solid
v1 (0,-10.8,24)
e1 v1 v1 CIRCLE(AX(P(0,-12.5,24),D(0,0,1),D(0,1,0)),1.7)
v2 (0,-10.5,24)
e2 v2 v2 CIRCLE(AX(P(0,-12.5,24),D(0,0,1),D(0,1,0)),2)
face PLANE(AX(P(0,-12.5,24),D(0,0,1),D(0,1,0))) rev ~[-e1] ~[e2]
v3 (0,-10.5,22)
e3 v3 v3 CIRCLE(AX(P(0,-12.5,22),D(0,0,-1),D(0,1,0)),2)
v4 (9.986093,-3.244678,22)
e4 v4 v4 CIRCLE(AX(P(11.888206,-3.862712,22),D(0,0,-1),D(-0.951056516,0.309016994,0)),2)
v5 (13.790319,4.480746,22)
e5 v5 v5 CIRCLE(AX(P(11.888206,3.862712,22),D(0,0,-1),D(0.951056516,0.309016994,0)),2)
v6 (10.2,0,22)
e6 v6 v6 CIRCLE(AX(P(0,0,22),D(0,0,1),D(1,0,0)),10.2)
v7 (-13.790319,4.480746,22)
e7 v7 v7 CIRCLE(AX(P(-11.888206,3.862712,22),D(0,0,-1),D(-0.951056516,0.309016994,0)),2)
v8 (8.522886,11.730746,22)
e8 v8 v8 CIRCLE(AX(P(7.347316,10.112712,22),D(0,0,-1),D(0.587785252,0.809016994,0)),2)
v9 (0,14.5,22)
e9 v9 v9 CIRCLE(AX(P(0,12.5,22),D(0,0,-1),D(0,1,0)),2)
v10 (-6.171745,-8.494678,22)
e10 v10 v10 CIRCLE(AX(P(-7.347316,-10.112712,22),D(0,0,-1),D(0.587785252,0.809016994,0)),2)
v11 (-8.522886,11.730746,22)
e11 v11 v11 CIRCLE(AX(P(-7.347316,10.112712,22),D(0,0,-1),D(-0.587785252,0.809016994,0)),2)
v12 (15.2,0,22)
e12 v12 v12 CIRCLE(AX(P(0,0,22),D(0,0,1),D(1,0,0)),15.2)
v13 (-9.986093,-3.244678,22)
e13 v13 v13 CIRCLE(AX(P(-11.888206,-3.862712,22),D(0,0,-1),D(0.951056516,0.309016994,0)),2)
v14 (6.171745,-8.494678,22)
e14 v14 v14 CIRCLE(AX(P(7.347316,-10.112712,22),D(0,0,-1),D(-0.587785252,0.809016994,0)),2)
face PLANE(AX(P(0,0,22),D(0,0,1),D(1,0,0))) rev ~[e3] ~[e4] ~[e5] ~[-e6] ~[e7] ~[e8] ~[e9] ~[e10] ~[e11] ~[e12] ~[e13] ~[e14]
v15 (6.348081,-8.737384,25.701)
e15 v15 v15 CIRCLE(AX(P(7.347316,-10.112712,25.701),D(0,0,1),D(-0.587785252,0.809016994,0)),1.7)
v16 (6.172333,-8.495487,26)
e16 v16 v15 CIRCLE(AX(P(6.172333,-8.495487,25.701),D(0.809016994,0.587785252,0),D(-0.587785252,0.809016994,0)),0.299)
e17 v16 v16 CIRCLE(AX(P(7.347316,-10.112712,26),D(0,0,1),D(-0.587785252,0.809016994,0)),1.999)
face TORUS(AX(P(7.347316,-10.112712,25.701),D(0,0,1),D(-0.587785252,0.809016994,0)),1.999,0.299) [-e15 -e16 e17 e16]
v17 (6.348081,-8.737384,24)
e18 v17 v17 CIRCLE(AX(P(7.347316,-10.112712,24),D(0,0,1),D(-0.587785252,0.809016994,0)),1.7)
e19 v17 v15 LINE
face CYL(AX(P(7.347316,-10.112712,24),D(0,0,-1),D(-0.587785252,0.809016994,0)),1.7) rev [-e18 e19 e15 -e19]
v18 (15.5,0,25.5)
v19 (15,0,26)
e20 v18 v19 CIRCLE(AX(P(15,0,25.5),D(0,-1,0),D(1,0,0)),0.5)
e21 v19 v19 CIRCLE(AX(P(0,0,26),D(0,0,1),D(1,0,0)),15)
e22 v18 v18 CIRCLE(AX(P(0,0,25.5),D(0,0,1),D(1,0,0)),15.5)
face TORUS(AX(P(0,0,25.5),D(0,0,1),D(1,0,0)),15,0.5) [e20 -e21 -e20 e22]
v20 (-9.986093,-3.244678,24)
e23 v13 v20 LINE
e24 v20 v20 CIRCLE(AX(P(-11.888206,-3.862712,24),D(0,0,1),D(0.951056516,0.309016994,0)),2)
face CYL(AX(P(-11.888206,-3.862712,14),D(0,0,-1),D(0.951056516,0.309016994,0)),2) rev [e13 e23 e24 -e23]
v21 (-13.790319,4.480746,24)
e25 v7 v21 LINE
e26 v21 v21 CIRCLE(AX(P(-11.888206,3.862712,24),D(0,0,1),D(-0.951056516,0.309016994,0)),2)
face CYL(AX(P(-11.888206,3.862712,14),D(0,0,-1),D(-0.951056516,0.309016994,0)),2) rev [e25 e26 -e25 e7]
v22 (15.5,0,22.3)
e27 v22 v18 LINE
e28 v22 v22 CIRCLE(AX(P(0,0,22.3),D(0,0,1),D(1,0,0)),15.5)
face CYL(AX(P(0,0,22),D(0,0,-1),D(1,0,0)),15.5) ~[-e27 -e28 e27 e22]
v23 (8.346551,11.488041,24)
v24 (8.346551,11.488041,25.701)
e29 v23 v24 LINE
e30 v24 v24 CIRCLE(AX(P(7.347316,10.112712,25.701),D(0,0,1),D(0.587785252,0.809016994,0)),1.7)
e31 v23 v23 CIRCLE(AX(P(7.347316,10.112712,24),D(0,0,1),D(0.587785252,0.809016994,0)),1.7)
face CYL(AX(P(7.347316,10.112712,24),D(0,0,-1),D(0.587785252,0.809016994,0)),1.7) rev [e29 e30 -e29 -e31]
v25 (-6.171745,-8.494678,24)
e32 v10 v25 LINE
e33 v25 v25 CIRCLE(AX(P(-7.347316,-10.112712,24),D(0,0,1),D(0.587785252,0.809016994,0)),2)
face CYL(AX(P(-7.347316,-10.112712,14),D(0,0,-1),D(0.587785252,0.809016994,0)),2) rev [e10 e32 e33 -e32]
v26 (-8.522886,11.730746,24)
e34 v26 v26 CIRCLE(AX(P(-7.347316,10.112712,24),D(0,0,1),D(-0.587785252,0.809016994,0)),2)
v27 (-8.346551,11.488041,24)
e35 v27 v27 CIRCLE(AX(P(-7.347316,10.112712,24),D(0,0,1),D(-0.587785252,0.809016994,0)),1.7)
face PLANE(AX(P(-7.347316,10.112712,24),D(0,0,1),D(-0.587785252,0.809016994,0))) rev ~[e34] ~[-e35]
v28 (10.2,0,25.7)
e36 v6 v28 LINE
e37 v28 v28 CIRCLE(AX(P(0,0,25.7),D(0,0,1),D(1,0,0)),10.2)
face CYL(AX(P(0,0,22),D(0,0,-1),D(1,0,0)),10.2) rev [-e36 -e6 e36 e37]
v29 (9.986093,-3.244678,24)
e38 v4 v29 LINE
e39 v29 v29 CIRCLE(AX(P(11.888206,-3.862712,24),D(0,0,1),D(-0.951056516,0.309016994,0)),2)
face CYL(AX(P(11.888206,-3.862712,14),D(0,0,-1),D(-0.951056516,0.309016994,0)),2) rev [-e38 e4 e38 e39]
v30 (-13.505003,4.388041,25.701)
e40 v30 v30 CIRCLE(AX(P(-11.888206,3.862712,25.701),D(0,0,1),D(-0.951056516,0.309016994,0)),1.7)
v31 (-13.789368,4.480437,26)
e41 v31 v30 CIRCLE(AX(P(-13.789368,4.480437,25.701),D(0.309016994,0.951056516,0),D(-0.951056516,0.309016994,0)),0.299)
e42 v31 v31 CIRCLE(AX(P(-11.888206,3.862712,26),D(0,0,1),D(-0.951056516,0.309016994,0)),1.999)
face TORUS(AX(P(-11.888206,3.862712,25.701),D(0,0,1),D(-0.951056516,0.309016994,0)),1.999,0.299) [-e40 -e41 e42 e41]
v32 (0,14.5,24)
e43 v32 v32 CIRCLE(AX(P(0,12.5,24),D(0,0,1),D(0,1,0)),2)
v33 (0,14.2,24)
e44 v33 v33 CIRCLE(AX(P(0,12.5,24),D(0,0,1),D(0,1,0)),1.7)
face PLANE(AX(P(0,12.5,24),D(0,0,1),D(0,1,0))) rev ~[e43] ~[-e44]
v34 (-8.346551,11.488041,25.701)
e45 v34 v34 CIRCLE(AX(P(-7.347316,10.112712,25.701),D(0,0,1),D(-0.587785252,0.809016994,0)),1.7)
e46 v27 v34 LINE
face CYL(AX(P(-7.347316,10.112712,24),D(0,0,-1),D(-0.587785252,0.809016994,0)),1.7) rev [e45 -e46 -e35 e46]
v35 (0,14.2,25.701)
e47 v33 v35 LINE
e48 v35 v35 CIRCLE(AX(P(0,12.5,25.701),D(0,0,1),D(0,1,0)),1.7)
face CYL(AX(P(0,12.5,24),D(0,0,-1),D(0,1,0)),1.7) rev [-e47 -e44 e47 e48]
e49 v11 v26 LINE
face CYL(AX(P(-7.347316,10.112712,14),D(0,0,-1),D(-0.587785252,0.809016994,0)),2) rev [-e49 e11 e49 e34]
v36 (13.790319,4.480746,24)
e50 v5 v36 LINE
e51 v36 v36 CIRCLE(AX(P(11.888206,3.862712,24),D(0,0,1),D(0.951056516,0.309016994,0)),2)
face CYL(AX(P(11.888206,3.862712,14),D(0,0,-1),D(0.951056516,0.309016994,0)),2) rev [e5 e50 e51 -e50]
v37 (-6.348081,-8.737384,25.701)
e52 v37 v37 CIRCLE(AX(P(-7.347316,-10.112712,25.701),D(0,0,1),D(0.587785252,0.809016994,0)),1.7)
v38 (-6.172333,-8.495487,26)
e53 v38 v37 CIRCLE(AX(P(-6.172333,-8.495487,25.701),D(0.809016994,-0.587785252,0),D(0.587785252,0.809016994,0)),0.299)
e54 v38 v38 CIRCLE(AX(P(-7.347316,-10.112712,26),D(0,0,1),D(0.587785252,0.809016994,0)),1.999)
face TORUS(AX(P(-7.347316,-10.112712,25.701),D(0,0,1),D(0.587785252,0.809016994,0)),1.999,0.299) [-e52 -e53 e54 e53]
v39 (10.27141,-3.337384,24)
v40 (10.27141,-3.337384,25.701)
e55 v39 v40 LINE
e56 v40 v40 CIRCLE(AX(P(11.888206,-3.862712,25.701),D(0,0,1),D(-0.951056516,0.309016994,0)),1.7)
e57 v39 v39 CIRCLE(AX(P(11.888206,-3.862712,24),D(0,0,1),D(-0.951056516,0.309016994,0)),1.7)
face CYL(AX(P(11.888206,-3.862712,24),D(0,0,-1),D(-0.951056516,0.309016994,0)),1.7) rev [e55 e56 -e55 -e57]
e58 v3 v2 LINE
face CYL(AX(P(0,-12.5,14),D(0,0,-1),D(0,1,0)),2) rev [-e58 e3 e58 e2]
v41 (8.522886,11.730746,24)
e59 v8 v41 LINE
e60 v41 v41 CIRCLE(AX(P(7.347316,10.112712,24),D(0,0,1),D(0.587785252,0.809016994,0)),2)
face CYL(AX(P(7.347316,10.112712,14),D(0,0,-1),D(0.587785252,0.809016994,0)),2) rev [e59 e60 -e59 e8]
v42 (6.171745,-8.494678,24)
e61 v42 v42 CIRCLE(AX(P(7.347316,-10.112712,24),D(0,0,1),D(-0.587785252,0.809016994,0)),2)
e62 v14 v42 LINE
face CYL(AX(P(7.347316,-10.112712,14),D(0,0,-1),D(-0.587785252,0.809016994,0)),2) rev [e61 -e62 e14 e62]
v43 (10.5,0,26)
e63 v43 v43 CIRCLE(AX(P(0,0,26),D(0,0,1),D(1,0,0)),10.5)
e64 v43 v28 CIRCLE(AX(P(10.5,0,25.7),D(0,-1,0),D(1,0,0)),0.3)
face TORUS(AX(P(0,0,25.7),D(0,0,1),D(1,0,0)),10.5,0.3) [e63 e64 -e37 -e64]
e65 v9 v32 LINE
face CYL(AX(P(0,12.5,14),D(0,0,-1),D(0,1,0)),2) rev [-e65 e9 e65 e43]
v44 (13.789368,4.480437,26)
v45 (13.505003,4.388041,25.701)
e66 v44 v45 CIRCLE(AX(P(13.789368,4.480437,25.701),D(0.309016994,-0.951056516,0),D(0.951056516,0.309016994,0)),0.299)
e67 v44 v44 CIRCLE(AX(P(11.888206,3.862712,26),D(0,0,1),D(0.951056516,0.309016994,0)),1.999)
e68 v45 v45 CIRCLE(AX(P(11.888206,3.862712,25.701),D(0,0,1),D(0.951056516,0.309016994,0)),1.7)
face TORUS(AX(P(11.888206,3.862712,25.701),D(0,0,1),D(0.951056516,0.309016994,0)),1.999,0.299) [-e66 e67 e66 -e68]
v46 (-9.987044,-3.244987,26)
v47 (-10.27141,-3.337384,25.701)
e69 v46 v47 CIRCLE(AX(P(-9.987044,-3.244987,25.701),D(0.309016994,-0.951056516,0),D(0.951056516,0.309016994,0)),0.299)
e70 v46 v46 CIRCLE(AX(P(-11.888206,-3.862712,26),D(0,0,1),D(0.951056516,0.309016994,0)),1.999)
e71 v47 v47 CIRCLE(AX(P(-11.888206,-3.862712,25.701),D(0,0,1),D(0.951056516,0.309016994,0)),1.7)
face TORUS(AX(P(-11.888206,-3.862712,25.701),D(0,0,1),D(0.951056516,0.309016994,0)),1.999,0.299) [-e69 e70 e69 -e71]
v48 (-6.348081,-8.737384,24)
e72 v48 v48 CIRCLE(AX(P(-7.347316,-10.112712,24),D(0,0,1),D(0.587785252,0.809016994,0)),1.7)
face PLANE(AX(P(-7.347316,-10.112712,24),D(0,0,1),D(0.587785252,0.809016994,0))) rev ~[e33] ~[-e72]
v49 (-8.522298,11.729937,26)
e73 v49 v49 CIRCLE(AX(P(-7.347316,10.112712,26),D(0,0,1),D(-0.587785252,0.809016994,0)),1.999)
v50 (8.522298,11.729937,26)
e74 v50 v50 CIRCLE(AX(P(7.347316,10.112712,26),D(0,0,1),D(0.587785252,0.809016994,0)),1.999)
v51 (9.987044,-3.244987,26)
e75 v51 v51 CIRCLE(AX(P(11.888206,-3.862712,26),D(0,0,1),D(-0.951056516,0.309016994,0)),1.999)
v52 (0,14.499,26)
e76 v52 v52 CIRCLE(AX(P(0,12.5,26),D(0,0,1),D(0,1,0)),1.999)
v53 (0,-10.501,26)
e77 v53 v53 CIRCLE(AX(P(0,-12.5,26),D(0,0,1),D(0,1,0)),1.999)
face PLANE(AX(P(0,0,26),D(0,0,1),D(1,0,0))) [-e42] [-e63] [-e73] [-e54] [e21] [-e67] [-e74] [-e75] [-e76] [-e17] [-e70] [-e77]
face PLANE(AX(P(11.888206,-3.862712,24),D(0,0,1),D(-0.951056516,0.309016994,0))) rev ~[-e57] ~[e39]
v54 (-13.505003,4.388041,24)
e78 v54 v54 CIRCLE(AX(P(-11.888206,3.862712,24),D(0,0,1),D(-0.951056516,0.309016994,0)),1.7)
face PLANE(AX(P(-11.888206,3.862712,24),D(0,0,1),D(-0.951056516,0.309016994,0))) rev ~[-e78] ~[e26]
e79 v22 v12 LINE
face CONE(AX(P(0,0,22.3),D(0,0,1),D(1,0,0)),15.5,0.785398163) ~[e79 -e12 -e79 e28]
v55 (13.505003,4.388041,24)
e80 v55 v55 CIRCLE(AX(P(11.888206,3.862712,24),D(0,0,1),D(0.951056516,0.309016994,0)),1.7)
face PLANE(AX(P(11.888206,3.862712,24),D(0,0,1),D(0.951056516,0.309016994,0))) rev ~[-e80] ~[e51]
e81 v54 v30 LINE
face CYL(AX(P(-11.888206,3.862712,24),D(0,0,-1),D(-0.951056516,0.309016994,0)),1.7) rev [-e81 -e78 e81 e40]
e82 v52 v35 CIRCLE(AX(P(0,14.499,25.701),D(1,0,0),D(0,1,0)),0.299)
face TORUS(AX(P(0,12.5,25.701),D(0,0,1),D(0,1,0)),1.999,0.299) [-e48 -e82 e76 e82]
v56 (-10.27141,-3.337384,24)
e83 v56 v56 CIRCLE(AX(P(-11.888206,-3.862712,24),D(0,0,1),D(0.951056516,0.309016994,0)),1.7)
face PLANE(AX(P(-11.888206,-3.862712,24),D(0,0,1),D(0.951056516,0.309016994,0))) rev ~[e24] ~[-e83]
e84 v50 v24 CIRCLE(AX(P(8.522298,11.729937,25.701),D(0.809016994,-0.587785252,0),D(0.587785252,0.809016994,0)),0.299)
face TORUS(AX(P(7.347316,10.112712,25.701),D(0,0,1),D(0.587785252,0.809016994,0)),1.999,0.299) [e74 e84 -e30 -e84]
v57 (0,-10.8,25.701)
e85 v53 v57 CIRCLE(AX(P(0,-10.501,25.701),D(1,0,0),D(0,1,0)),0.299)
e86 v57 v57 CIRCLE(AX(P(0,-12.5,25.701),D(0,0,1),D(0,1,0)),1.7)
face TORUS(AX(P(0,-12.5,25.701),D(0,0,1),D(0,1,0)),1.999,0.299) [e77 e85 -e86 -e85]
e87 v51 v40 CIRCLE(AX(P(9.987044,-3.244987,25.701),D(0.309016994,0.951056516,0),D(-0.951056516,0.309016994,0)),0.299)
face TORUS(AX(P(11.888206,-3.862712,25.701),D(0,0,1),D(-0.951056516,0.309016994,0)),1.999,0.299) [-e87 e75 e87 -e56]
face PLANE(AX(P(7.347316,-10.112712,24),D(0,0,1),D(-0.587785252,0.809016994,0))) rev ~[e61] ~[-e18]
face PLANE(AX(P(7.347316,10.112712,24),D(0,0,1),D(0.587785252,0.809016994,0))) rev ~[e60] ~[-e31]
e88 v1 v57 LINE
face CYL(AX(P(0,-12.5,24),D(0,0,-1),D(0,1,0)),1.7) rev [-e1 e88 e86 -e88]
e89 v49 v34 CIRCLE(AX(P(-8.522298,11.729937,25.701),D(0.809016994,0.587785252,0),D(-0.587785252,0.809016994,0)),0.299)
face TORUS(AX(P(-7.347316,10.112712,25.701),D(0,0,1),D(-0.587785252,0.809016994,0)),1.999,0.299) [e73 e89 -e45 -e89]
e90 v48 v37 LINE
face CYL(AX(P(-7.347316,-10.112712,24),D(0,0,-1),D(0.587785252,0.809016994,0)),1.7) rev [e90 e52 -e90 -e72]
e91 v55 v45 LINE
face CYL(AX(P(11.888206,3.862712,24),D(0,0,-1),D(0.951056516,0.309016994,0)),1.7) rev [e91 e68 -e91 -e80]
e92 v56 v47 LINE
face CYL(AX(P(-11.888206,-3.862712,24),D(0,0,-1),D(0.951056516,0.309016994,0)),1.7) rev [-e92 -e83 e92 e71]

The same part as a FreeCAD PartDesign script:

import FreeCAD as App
import Part
import Sketcher


def edges_at(feature, points):
    """Names of the edges that pass closest to the given points."""
    edges = feature.Shape.Edges
    near = lambda p: min(range(len(edges)), key=lambda i: edges[i].distToShape(Part.Vertex(*p))[0])
    return sorted({f"Edge{near(p) + 1}" for p in points})

doc = App.newDocument("Part")
body = doc.addObject("PartDesign::Body", "Body")

sketch1 = doc.addObject("Sketcher::SketchObject", "Sketch")
body.addObject(sketch1)
sketch1.AttachmentSupport = (doc.XY_Plane, [""])
sketch1.MapMode = "FlatFace"
sketch1.AttachmentOffset = App.Placement(App.Vector(0, 0, 22), App.Rotation())
sketch1.addGeometry(Part.Circle(App.Vector(0, 0, 0), App.Vector(0, 0, 1), 10), False)
sketch1.addConstraint([
    Sketcher.Constraint("Coincident", 0, 3, -1, 1),
    Sketcher.Constraint("Diameter", 0, 20.4),
])
pad1 = doc.addObject("PartDesign::Pad", "Pad")
body.addObject(pad1)
pad1.Profile = sketch1
pad1.Length = 4
body2 = doc.addObject("PartDesign::Body", "Body001")

sketch2 = doc.addObject("Sketcher::SketchObject", "Sketch001")
body2.addObject(sketch2)
sketch2.AttachmentSupport = (doc.getObject("XY_Plane001"), [""])
sketch2.MapMode = "FlatFace"
sketch2.AttachmentOffset = App.Placement(App.Vector(0, 0, 13), App.Rotation())
sketch2.addGeometry(Part.Circle(App.Vector(-12.5, 0, 0), App.Vector(0, 0, 1), 1.7), False)
sketch2.addConstraint([
    Sketcher.Constraint("PointOnObject", 0, 3, -1),
    Sketcher.Constraint("Diameter", 0, 3.4),
    Sketcher.Constraint("DistanceX", 0, 3, -1, 1, 12.5),
])
pad2 = doc.addObject("PartDesign::Pad", "Pad001")
body2.addObject(pad2)
pad2.Profile = sketch2
pad2.Length = 2
body3 = doc.addObject("PartDesign::Body", "Body002")
body3.AllowCompound = True

sketch3 = doc.addObject("Sketcher::SketchObject", "Sketch002")
body3.addObject(sketch3)
sketch3.AttachmentSupport = (doc.getObject("XY_Plane002"), [""])
sketch3.MapMode = "FlatFace"
sketch3.AttachmentOffset = App.Placement(App.Vector(0, 0, 13), App.Rotation())
sketch3.addGeometry(Part.Circle(App.Vector(12.5, 0, 0), App.Vector(0, 0, 1), 1.7), False)
sketch3.addConstraint([
    Sketcher.Constraint("PointOnObject", 0, 3, -1),
    Sketcher.Constraint("Diameter", 0, 3.4),
    Sketcher.Constraint("DistanceX", -1, 1, 0, 3, 12.5),
])
pad3 = doc.addObject("PartDesign::Pad", "Pad002")
body3.addObject(pad3)
pad3.Profile = sketch3
pad3.Length = 2
doc.recompute()

boolean = doc.addObject("PartDesign::Boolean", "Boolean")
body3.addObject(boolean)
boolean.Type = "Fuse"
boolean.addObjects([body2])
body4 = doc.addObject("PartDesign::Body", "Body003")
body4.AllowCompound = True
doc.recompute()

body3.Placement = App.Placement(App.Vector(0, 0, 0), App.Rotation(App.Vector(0, 0, 1), 54))
boolean2 = doc.addObject("PartDesign::Boolean", "Boolean001")
body4.addObject(boolean2)
boolean2.Type = "Fuse"
boolean2.addObjects([body3])
body5 = doc.addObject("PartDesign::Body", "Body004")

sketch4 = doc.addObject("Sketcher::SketchObject", "Sketch003")
body5.addObject(sketch4)
sketch4.AttachmentSupport = (doc.getObject("XY_Plane004"), [""])
sketch4.MapMode = "FlatFace"
sketch4.AttachmentOffset = App.Placement(App.Vector(0, 0, 13), App.Rotation())
sketch4.addGeometry(Part.Circle(App.Vector(-12.5, 0, 0), App.Vector(0, 0, 1), 1.7), False)
sketch4.addConstraint([
    Sketcher.Constraint("PointOnObject", 0, 3, -1),
    Sketcher.Constraint("Diameter", 0, 3.4),
    Sketcher.Constraint("DistanceX", 0, 3, -1, 1, 12.5),
])
pad4 = doc.addObject("PartDesign::Pad", "Pad003")
body5.addObject(pad4)
pad4.Profile = sketch4
pad4.Length = 2
body6 = doc.addObject("PartDesign::Body", "Body005")
body6.AllowCompound = True

sketch5 = doc.addObject("Sketcher::SketchObject", "Sketch004")
body6.addObject(sketch5)
sketch5.AttachmentSupport = (doc.getObject("XY_Plane005"), [""])
sketch5.MapMode = "FlatFace"
sketch5.AttachmentOffset = App.Placement(App.Vector(0, 0, 13), App.Rotation())
sketch5.addGeometry(Part.Circle(App.Vector(12.5, 0, 0), App.Vector(0, 0, 1), 1.7), False)
sketch5.addConstraint([
    Sketcher.Constraint("PointOnObject", 0, 3, -1),
    Sketcher.Constraint("Diameter", 0, 3.4),
    Sketcher.Constraint("DistanceX", -1, 1, 0, 3, 12.5),
])
pad5 = doc.addObject("PartDesign::Pad", "Pad004")
body6.addObject(pad5)
pad5.Profile = sketch5
pad5.Length = 2
doc.recompute()

boolean3 = doc.addObject("PartDesign::Boolean", "Boolean002")
body6.addObject(boolean3)
boolean3.Type = "Fuse"
boolean3.addObjects([body5])
body7 = doc.addObject("PartDesign::Body", "Body006")
body7.AllowCompound = True
doc.recompute()

body6.Placement = App.Placement(App.Vector(0, 0, 0), App.Rotation(App.Vector(0, 0, 1), 162))
boolean4 = doc.addObject("PartDesign::Boolean", "Boolean003")
body7.addObject(boolean4)
boolean4.Type = "Fuse"
boolean4.addObjects([body6])
body8 = doc.addObject("PartDesign::Body", "Body007")

sketch6 = doc.addObject("Sketcher::SketchObject", "Sketch005")
body8.addObject(sketch6)
sketch6.AttachmentSupport = (doc.getObject("XY_Plane007"), [""])
sketch6.MapMode = "FlatFace"
sketch6.AttachmentOffset = App.Placement(App.Vector(0, 0, 13), App.Rotation())
sketch6.addGeometry(Part.Circle(App.Vector(-12.5, 0, 0), App.Vector(0, 0, 1), 1.7), False)
sketch6.addConstraint([
    Sketcher.Constraint("PointOnObject", 0, 3, -1),
    Sketcher.Constraint("Diameter", 0, 3.4),
    Sketcher.Constraint("DistanceX", 0, 3, -1, 1, 12.5),
])
pad6 = doc.addObject("PartDesign::Pad", "Pad005")
body8.addObject(pad6)
pad6.Profile = sketch6
pad6.Length = 2
body9 = doc.addObject("PartDesign::Body", "Body008")
body9.AllowCompound = True

sketch7 = doc.addObject("Sketcher::SketchObject", "Sketch006")
body9.addObject(sketch7)
sketch7.AttachmentSupport = (doc.getObject("XY_Plane008"), [""])
sketch7.MapMode = "FlatFace"
sketch7.AttachmentOffset = App.Placement(App.Vector(0, 0, 13), App.Rotation())
sketch7.addGeometry(Part.Circle(App.Vector(12.5, 0, 0), App.Vector(0, 0, 1), 1.7), False)
sketch7.addConstraint([
    Sketcher.Constraint("PointOnObject", 0, 3, -1),
    Sketcher.Constraint("Diameter", 0, 3.4),
    Sketcher.Constraint("DistanceX", -1, 1, 0, 3, 12.5),
])
pad7 = doc.addObject("PartDesign::Pad", "Pad006")
body9.addObject(pad7)
pad7.Profile = sketch7
pad7.Length = 2
doc.recompute()

boolean5 = doc.addObject("PartDesign::Boolean", "Boolean004")
body9.addObject(boolean5)
boolean5.Type = "Fuse"
boolean5.addObjects([body8])
body10 = doc.addObject("PartDesign::Body", "Body009")
body10.AllowCompound = True
doc.recompute()

body9.Placement = App.Placement(App.Vector(0, 0, 0), App.Rotation(App.Vector(0, 0, 1), 126))
boolean6 = doc.addObject("PartDesign::Boolean", "Boolean005")
body10.addObject(boolean6)
boolean6.Type = "Fuse"
boolean6.addObjects([body9])
body11 = doc.addObject("PartDesign::Body", "Body010")

sketch8 = doc.addObject("Sketcher::SketchObject", "Sketch007")
body11.addObject(sketch8)
sketch8.AttachmentSupport = (doc.getObject("XY_Plane010"), [""])
sketch8.MapMode = "FlatFace"
sketch8.AttachmentOffset = App.Placement(App.Vector(0, 0, 13), App.Rotation())
sketch8.addGeometry(Part.Circle(App.Vector(-12.5, 0, 0), App.Vector(0, 0, 1), 1.7), False)
sketch8.addConstraint([
    Sketcher.Constraint("PointOnObject", 0, 3, -1),
    Sketcher.Constraint("Diameter", 0, 3.4),
    Sketcher.Constraint("DistanceX", 0, 3, -1, 1, 12.5),
])
pad8 = doc.addObject("PartDesign::Pad", "Pad007")
body11.addObject(pad8)
pad8.Profile = sketch8
pad8.Length = 2
body12 = doc.addObject("PartDesign::Body", "Body011")
body12.AllowCompound = True

sketch9 = doc.addObject("Sketcher::SketchObject", "Sketch008")
body12.addObject(sketch9)
sketch9.AttachmentSupport = (doc.getObject("XY_Plane011"), [""])
sketch9.MapMode = "FlatFace"
sketch9.AttachmentOffset = App.Placement(App.Vector(0, 0, 13), App.Rotation())
sketch9.addGeometry(Part.Circle(App.Vector(12.5, 0, 0), App.Vector(0, 0, 1), 1.7), False)
sketch9.addConstraint([
    Sketcher.Constraint("PointOnObject", 0, 3, -1),
    Sketcher.Constraint("Diameter", 0, 3.4),
    Sketcher.Constraint("DistanceX", -1, 1, 0, 3, 12.5),
])
pad9 = doc.addObject("PartDesign::Pad", "Pad008")
body12.addObject(pad9)
pad9.Profile = sketch9
pad9.Length = 2
doc.recompute()

boolean7 = doc.addObject("PartDesign::Boolean", "Boolean006")
body12.addObject(boolean7)
boolean7.Type = "Fuse"
boolean7.addObjects([body11])
body13 = doc.addObject("PartDesign::Body", "Body012")
body13.AllowCompound = True
doc.recompute()

body12.Placement = App.Placement(App.Vector(0, 0, 0), App.Rotation(App.Vector(0, 0, 1), 90))
boolean8 = doc.addObject("PartDesign::Boolean", "Boolean007")
body13.addObject(boolean8)
boolean8.Type = "Fuse"
boolean8.addObjects([body12])
body14 = doc.addObject("PartDesign::Body", "Body013")

sketch10 = doc.addObject("Sketcher::SketchObject", "Sketch009")
body14.addObject(sketch10)
sketch10.AttachmentSupport = (doc.getObject("XY_Plane013"), [""])
sketch10.MapMode = "FlatFace"
sketch10.AttachmentOffset = App.Placement(App.Vector(0, 0, 13), App.Rotation())
sketch10.addGeometry(Part.Circle(App.Vector(-12.5, 0, 0), App.Vector(0, 0, 1), 1.7), False)
sketch10.addConstraint([
    Sketcher.Constraint("PointOnObject", 0, 3, -1),
    Sketcher.Constraint("Diameter", 0, 3.4),
    Sketcher.Constraint("DistanceX", 0, 3, -1, 1, 12.5),
])
pad10 = doc.addObject("PartDesign::Pad", "Pad009")
body14.addObject(pad10)
pad10.Profile = sketch10
pad10.Length = 2
body15 = doc.addObject("PartDesign::Body", "Body014")
body15.AllowCompound = True

sketch11 = doc.addObject("Sketcher::SketchObject", "Sketch010")
body15.addObject(sketch11)
sketch11.AttachmentSupport = (doc.getObject("XY_Plane014"), [""])
sketch11.MapMode = "FlatFace"
sketch11.AttachmentOffset = App.Placement(App.Vector(0, 0, 13), App.Rotation())
sketch11.addGeometry(Part.Circle(App.Vector(12.5, 0, 0), App.Vector(0, 0, 1), 1.7), False)
sketch11.addConstraint([
    Sketcher.Constraint("PointOnObject", 0, 3, -1),
    Sketcher.Constraint("Diameter", 0, 3.4),
    Sketcher.Constraint("DistanceX", -1, 1, 0, 3, 12.5),
])
pad11 = doc.addObject("PartDesign::Pad", "Pad010")
body15.addObject(pad11)
pad11.Profile = sketch11
pad11.Length = 2
doc.recompute()

boolean9 = doc.addObject("PartDesign::Boolean", "Boolean008")
body15.addObject(boolean9)
boolean9.Type = "Fuse"
boolean9.addObjects([body14])
body16 = doc.addObject("PartDesign::Body", "Body015")
body16.AllowCompound = True
doc.recompute()

body15.Placement = App.Placement(App.Vector(0, 0, 0), App.Rotation(App.Vector(0, 0, 1), 18))
boolean10 = doc.addObject("PartDesign::Boolean", "Boolean009")
body16.addObject(boolean10)
boolean10.Type = "Fuse"
boolean10.addObjects([body15])
doc.recompute()

boolean11 = doc.addObject("PartDesign::Boolean", "Boolean010")
body16.addObject(boolean11)
boolean11.Type = "Fuse"
boolean11.addObjects([body4])
doc.recompute()

boolean12 = doc.addObject("PartDesign::Boolean", "Boolean011")
body16.addObject(boolean12)
boolean12.Type = "Fuse"
boolean12.addObjects([body7])
doc.recompute()

boolean13 = doc.addObject("PartDesign::Boolean", "Boolean012")
body16.addObject(boolean13)
boolean13.Type = "Fuse"
boolean13.addObjects([body10])
doc.recompute()

boolean14 = doc.addObject("PartDesign::Boolean", "Boolean013")
body16.addObject(boolean14)
boolean14.Type = "Fuse"
boolean14.addObjects([body13])
body17 = doc.addObject("PartDesign::Body", "Body016")
body17.AllowCompound = True
doc.recompute()

body16.Placement = App.Placement(App.Vector(0, 0, 11), App.Rotation(App.Vector(0, 0, 1), 0))
boolean15 = doc.addObject("PartDesign::Boolean", "Boolean014")
body17.addObject(boolean15)
boolean15.Type = "Fuse"
boolean15.addObjects([body16])
body18 = doc.addObject("PartDesign::Body", "Body017")

sketch12 = doc.addObject("Sketcher::SketchObject", "Sketch011")
body18.addObject(sketch12)
sketch12.AttachmentSupport = (doc.getObject("XY_Plane017"), [""])
sketch12.MapMode = "FlatFace"
sketch12.AttachmentOffset = App.Placement(App.Vector(0, 0, 13), App.Rotation())
sketch12.addGeometry(Part.Circle(App.Vector(-12.5, 0, 0), App.Vector(0, 0, 1), 2), False)
sketch12.addConstraint([
    Sketcher.Constraint("PointOnObject", 0, 3, -1),
    Sketcher.Constraint("Diameter", 0, 4.0),
    Sketcher.Constraint("DistanceX", 0, 3, -1, 1, 12.5),
])
pad12 = doc.addObject("PartDesign::Pad", "Pad011")
body18.addObject(pad12)
pad12.Profile = sketch12
pad12.Length = 10
body19 = doc.addObject("PartDesign::Body", "Body018")
body19.AllowCompound = True

sketch13 = doc.addObject("Sketcher::SketchObject", "Sketch012")
body19.addObject(sketch13)
sketch13.AttachmentSupport = (doc.getObject("XY_Plane018"), [""])
sketch13.MapMode = "FlatFace"
sketch13.AttachmentOffset = App.Placement(App.Vector(0, 0, 13), App.Rotation())
sketch13.addGeometry(Part.Circle(App.Vector(12.5, 0, 0), App.Vector(0, 0, 1), 2), False)
sketch13.addConstraint([
    Sketcher.Constraint("PointOnObject", 0, 3, -1),
    Sketcher.Constraint("Diameter", 0, 4.0),
    Sketcher.Constraint("DistanceX", -1, 1, 0, 3, 12.5),
])
pad13 = doc.addObject("PartDesign::Pad", "Pad012")
body19.addObject(pad13)
pad13.Profile = sketch13
pad13.Length = 10
doc.recompute()

boolean16 = doc.addObject("PartDesign::Boolean", "Boolean015")
body19.addObject(boolean16)
boolean16.Type = "Fuse"
boolean16.addObjects([body18])
body20 = doc.addObject("PartDesign::Body", "Body019")
body20.AllowCompound = True
doc.recompute()

body19.Placement = App.Placement(App.Vector(0, 0, 0), App.Rotation(App.Vector(0, 0, 1), 54))
boolean17 = doc.addObject("PartDesign::Boolean", "Boolean016")
body20.addObject(boolean17)
boolean17.Type = "Fuse"
boolean17.addObjects([body19])
body21 = doc.addObject("PartDesign::Body", "Body020")

sketch14 = doc.addObject("Sketcher::SketchObject", "Sketch013")
body21.addObject(sketch14)
sketch14.AttachmentSupport = (doc.getObject("XY_Plane020"), [""])
sketch14.MapMode = "FlatFace"
sketch14.AttachmentOffset = App.Placement(App.Vector(0, 0, 13), App.Rotation())
sketch14.addGeometry(Part.Circle(App.Vector(-12.5, 0, 0), App.Vector(0, 0, 1), 2), False)
sketch14.addConstraint([
    Sketcher.Constraint("PointOnObject", 0, 3, -1),
    Sketcher.Constraint("Diameter", 0, 4.0),
    Sketcher.Constraint("DistanceX", 0, 3, -1, 1, 12.5),
])
pad14 = doc.addObject("PartDesign::Pad", "Pad013")
body21.addObject(pad14)
pad14.Profile = sketch14
pad14.Length = 10
body22 = doc.addObject("PartDesign::Body", "Body021")
body22.AllowCompound = True

sketch15 = doc.addObject("Sketcher::SketchObject", "Sketch014")
body22.addObject(sketch15)
sketch15.AttachmentSupport = (doc.getObject("XY_Plane021"), [""])
sketch15.MapMode = "FlatFace"
sketch15.AttachmentOffset = App.Placement(App.Vector(0, 0, 13), App.Rotation())
sketch15.addGeometry(Part.Circle(App.Vector(12.5, 0, 0), App.Vector(0, 0, 1), 2), False)
sketch15.addConstraint([
    Sketcher.Constraint("PointOnObject", 0, 3, -1),
    Sketcher.Constraint("Diameter", 0, 4.0),
    Sketcher.Constraint("DistanceX", -1, 1, 0, 3, 12.5),
])
pad15 = doc.addObject("PartDesign::Pad", "Pad014")
body22.addObject(pad15)
pad15.Profile = sketch15
pad15.Length = 10
doc.recompute()

boolean18 = doc.addObject("PartDesign::Boolean", "Boolean017")
body22.addObject(boolean18)
boolean18.Type = "Fuse"
boolean18.addObjects([body21])
body23 = doc.addObject("PartDesign::Body", "Body022")
body23.AllowCompound = True
doc.recompute()

body22.Placement = App.Placement(App.Vector(0, 0, 0), App.Rotation(App.Vector(0, 0, 1), 162))
boolean19 = doc.addObject("PartDesign::Boolean", "Boolean018")
body23.addObject(boolean19)
boolean19.Type = "Fuse"
boolean19.addObjects([body22])
body24 = doc.addObject("PartDesign::Body", "Body023")

sketch16 = doc.addObject("Sketcher::SketchObject", "Sketch015")
body24.addObject(sketch16)
sketch16.AttachmentSupport = (doc.getObject("XY_Plane023"), [""])
sketch16.MapMode = "FlatFace"
sketch16.AttachmentOffset = App.Placement(App.Vector(0, 0, 13), App.Rotation())
sketch16.addGeometry(Part.Circle(App.Vector(-12.5, 0, 0), App.Vector(0, 0, 1), 2), False)
sketch16.addConstraint([
    Sketcher.Constraint("PointOnObject", 0, 3, -1),
    Sketcher.Constraint("Diameter", 0, 4.0),
    Sketcher.Constraint("DistanceX", 0, 3, -1, 1, 12.5),
])
pad16 = doc.addObject("PartDesign::Pad", "Pad015")
body24.addObject(pad16)
pad16.Profile = sketch16
pad16.Length = 10
body25 = doc.addObject("PartDesign::Body", "Body024")
body25.AllowCompound = True

sketch17 = doc.addObject("Sketcher::SketchObject", "Sketch016")
body25.addObject(sketch17)
sketch17.AttachmentSupport = (doc.getObject("XY_Plane024"), [""])
sketch17.MapMode = "FlatFace"
sketch17.AttachmentOffset = App.Placement(App.Vector(0, 0, 13), App.Rotation())
sketch17.addGeometry(Part.Circle(App.Vector(12.5, 0, 0), App.Vector(0, 0, 1), 2), False)
sketch17.addConstraint([
    Sketcher.Constraint("PointOnObject", 0, 3, -1),
    Sketcher.Constraint("Diameter", 0, 4.0),
    Sketcher.Constraint("DistanceX", -1, 1, 0, 3, 12.5),
])
pad17 = doc.addObject("PartDesign::Pad", "Pad016")
body25.addObject(pad17)
pad17.Profile = sketch17
pad17.Length = 10
doc.recompute()

boolean20 = doc.addObject("PartDesign::Boolean", "Boolean019")
body25.addObject(boolean20)
boolean20.Type = "Fuse"
boolean20.addObjects([body24])
body26 = doc.addObject("PartDesign::Body", "Body025")
body26.AllowCompound = True
doc.recompute()

body25.Placement = App.Placement(App.Vector(0, 0, 0), App.Rotation(App.Vector(0, 0, 1), 126))
boolean21 = doc.addObject("PartDesign::Boolean", "Boolean020")
body26.addObject(boolean21)
boolean21.Type = "Fuse"
boolean21.addObjects([body25])
body27 = doc.addObject("PartDesign::Body", "Body026")

sketch18 = doc.addObject("Sketcher::SketchObject", "Sketch017")
body27.addObject(sketch18)
sketch18.AttachmentSupport = (doc.getObject("XY_Plane026"), [""])
sketch18.MapMode = "FlatFace"
sketch18.AttachmentOffset = App.Placement(App.Vector(0, 0, 13), App.Rotation())
sketch18.addGeometry(Part.Circle(App.Vector(-12.5, 0, 0), App.Vector(0, 0, 1), 2), False)
sketch18.addConstraint([
    Sketcher.Constraint("PointOnObject", 0, 3, -1),
    Sketcher.Constraint("Diameter", 0, 4.0),
    Sketcher.Constraint("DistanceX", 0, 3, -1, 1, 12.5),
])
pad18 = doc.addObject("PartDesign::Pad", "Pad017")
body27.addObject(pad18)
pad18.Profile = sketch18
pad18.Length = 10
body28 = doc.addObject("PartDesign::Body", "Body027")
body28.AllowCompound = True

sketch19 = doc.addObject("Sketcher::SketchObject", "Sketch018")
body28.addObject(sketch19)
sketch19.AttachmentSupport = (doc.getObject("XY_Plane027"), [""])
sketch19.MapMode = "FlatFace"
sketch19.AttachmentOffset = App.Placement(App.Vector(0, 0, 13), App.Rotation())
sketch19.addGeometry(Part.Circle(App.Vector(12.5, 0, 0), App.Vector(0, 0, 1), 2), False)
sketch19.addConstraint([
    Sketcher.Constraint("PointOnObject", 0, 3, -1),
    Sketcher.Constraint("Diameter", 0, 4.0),
    Sketcher.Constraint("DistanceX", -1, 1, 0, 3, 12.5),
])
pad19 = doc.addObject("PartDesign::Pad", "Pad018")
body28.addObject(pad19)
pad19.Profile = sketch19
pad19.Length = 10
doc.recompute()

boolean22 = doc.addObject("PartDesign::Boolean", "Boolean021")
body28.addObject(boolean22)
boolean22.Type = "Fuse"
boolean22.addObjects([body27])
body29 = doc.addObject("PartDesign::Body", "Body028")
body29.AllowCompound = True
doc.recompute()

body28.Placement = App.Placement(App.Vector(0, 0, 0), App.Rotation(App.Vector(0, 0, 1), 90))
boolean23 = doc.addObject("PartDesign::Boolean", "Boolean022")
body29.addObject(boolean23)
boolean23.Type = "Fuse"
boolean23.addObjects([body28])
body30 = doc.addObject("PartDesign::Body", "Body029")

sketch20 = doc.addObject("Sketcher::SketchObject", "Sketch019")
body30.addObject(sketch20)
sketch20.AttachmentSupport = (doc.getObject("XY_Plane029"), [""])
sketch20.MapMode = "FlatFace"
sketch20.AttachmentOffset = App.Placement(App.Vector(0, 0, 13), App.Rotation())
sketch20.addGeometry(Part.Circle(App.Vector(-12.5, 0, 0), App.Vector(0, 0, 1), 2), False)
sketch20.addConstraint([
    Sketcher.Constraint("PointOnObject", 0, 3, -1),
    Sketcher.Constraint("Diameter", 0, 4.0),
    Sketcher.Constraint("DistanceX", 0, 3, -1, 1, 12.5),
])
pad20 = doc.addObject("PartDesign::Pad", "Pad019")
body30.addObject(pad20)
pad20.Profile = sketch20
pad20.Length = 10
body31 = doc.addObject("PartDesign::Body", "Body030")
body31.AllowCompound = True

sketch21 = doc.addObject("Sketcher::SketchObject", "Sketch020")
body31.addObject(sketch21)
sketch21.AttachmentSupport = (doc.getObject("XY_Plane030"), [""])
sketch21.MapMode = "FlatFace"
sketch21.AttachmentOffset = App.Placement(App.Vector(0, 0, 13), App.Rotation())
sketch21.addGeometry(Part.Circle(App.Vector(12.5, 0, 0), App.Vector(0, 0, 1), 2), False)
sketch21.addConstraint([
    Sketcher.Constraint("PointOnObject", 0, 3, -1),
    Sketcher.Constraint("Diameter", 0, 4.0),
    Sketcher.Constraint("DistanceX", -1, 1, 0, 3, 12.5),
])
pad21 = doc.addObject("PartDesign::Pad", "Pad020")
body31.addObject(pad21)
pad21.Profile = sketch21
pad21.Length = 10
doc.recompute()

boolean24 = doc.addObject("PartDesign::Boolean", "Boolean023")
body31.addObject(boolean24)
boolean24.Type = "Fuse"
boolean24.addObjects([body30])
body32 = doc.addObject("PartDesign::Body", "Body031")
body32.AllowCompound = True
doc.recompute()

body31.Placement = App.Placement(App.Vector(0, 0, 0), App.Rotation(App.Vector(0, 0, 1), 18))
boolean25 = doc.addObject("PartDesign::Boolean", "Boolean024")
body32.addObject(boolean25)
boolean25.Type = "Fuse"
boolean25.addObjects([body31])
doc.recompute()

boolean26 = doc.addObject("PartDesign::Boolean", "Boolean025")
body32.addObject(boolean26)
boolean26.Type = "Fuse"
boolean26.addObjects([body20])
doc.recompute()

boolean27 = doc.addObject("PartDesign::Boolean", "Boolean026")
body32.addObject(boolean27)
boolean27.Type = "Fuse"
boolean27.addObjects([body23])
doc.recompute()

boolean28 = doc.addObject("PartDesign::Boolean", "Boolean027")
body32.addObject(boolean28)
boolean28.Type = "Fuse"
boolean28.addObjects([body26])
doc.recompute()

boolean29 = doc.addObject("PartDesign::Boolean", "Boolean028")
body32.addObject(boolean29)
boolean29.Type = "Fuse"
boolean29.addObjects([body29])
body33 = doc.addObject("PartDesign::Body", "Body032")
body33.AllowCompound = True
doc.recompute()

body32.Placement = App.Placement(App.Vector(0, 0, 1), App.Rotation(App.Vector(0, 0, 1), 0))
boolean30 = doc.addObject("PartDesign::Boolean", "Boolean029")
body33.addObject(boolean30)
boolean30.Type = "Fuse"
boolean30.addObjects([body32])
doc.recompute()

boolean31 = doc.addObject("PartDesign::Boolean", "Boolean030")
body33.addObject(boolean31)
boolean31.Type = "Fuse"
boolean31.addObjects([body17])
body34 = doc.addObject("PartDesign::Body", "Body033")

sketch22 = doc.addObject("Sketcher::SketchObject", "Sketch021")
body34.addObject(sketch22)
sketch22.AttachmentSupport = (doc.getObject("XY_Plane033"), [""])
sketch22.MapMode = "FlatFace"
sketch22.AttachmentOffset = App.Placement(App.Vector(0, 0, 22), App.Rotation())
sketch22.addGeometry(Part.Circle(App.Vector(0, 0, 0), App.Vector(0, 0, 1), 16), False)
sketch22.addConstraint([
    Sketcher.Constraint("Coincident", 0, 3, -1, 1),
    Sketcher.Constraint("Diameter", 0, 31.0),
])
pad22 = doc.addObject("PartDesign::Pad", "Pad021")
body34.addObject(pad22)
pad22.Profile = sketch22
pad22.Length = 4
doc.recompute()

boolean32 = doc.addObject("PartDesign::Boolean", "Boolean031")
body34.addObject(boolean32)
boolean32.Type = "Cut"
boolean32.addObjects([body33])
doc.recompute()

boolean33 = doc.addObject("PartDesign::Boolean", "Boolean032")
body34.addObject(boolean33)
boolean33.Type = "Cut"
boolean33.addObjects([body])
doc.recompute()

fillet = doc.addObject("PartDesign::Fillet", "Fillet")
body34.addObject(fillet)
fillet.Base = (boolean33, edges_at(boolean33, [(-15.5, 0, 26)]))
fillet.Radius = 0.5
doc.recompute()

fillet2 = doc.addObject("PartDesign::Fillet", "Fillet001")
body34.addObject(fillet2)
fillet2.Base = (fillet, edges_at(fillet, [(-10.2, 0, 26)]))
fillet2.Radius = 0.3
doc.recompute()

chamfer = doc.addObject("PartDesign::Chamfer", "Chamfer")
body34.addObject(chamfer)
chamfer.Base = (fillet2, edges_at(fillet2, [(-15.5, 0, 22)]))
chamfer.Size = 0.3
doc.recompute()

fillet3 = doc.addObject("PartDesign::Fillet", "Fillet002")
body34.addObject(fillet3)
fillet3.Base = (chamfer, edges_at(chamfer, [
    (6.348, 8.737, 26),
    (-13.505, -4.388, 26),
    (-10.271, 3.337, 26),
    (13.505, -4.388, 26),
    (-6.348, 8.737, 26),
    (0, 10.8, 26),
    (10.271, 3.337, 26),
    (-8.347, -11.488, 26),
    (0, -14.2, 26),
    (8.347, -11.488, 26),
]))
fillet3.Radius = 0.299

doc.recompute()
